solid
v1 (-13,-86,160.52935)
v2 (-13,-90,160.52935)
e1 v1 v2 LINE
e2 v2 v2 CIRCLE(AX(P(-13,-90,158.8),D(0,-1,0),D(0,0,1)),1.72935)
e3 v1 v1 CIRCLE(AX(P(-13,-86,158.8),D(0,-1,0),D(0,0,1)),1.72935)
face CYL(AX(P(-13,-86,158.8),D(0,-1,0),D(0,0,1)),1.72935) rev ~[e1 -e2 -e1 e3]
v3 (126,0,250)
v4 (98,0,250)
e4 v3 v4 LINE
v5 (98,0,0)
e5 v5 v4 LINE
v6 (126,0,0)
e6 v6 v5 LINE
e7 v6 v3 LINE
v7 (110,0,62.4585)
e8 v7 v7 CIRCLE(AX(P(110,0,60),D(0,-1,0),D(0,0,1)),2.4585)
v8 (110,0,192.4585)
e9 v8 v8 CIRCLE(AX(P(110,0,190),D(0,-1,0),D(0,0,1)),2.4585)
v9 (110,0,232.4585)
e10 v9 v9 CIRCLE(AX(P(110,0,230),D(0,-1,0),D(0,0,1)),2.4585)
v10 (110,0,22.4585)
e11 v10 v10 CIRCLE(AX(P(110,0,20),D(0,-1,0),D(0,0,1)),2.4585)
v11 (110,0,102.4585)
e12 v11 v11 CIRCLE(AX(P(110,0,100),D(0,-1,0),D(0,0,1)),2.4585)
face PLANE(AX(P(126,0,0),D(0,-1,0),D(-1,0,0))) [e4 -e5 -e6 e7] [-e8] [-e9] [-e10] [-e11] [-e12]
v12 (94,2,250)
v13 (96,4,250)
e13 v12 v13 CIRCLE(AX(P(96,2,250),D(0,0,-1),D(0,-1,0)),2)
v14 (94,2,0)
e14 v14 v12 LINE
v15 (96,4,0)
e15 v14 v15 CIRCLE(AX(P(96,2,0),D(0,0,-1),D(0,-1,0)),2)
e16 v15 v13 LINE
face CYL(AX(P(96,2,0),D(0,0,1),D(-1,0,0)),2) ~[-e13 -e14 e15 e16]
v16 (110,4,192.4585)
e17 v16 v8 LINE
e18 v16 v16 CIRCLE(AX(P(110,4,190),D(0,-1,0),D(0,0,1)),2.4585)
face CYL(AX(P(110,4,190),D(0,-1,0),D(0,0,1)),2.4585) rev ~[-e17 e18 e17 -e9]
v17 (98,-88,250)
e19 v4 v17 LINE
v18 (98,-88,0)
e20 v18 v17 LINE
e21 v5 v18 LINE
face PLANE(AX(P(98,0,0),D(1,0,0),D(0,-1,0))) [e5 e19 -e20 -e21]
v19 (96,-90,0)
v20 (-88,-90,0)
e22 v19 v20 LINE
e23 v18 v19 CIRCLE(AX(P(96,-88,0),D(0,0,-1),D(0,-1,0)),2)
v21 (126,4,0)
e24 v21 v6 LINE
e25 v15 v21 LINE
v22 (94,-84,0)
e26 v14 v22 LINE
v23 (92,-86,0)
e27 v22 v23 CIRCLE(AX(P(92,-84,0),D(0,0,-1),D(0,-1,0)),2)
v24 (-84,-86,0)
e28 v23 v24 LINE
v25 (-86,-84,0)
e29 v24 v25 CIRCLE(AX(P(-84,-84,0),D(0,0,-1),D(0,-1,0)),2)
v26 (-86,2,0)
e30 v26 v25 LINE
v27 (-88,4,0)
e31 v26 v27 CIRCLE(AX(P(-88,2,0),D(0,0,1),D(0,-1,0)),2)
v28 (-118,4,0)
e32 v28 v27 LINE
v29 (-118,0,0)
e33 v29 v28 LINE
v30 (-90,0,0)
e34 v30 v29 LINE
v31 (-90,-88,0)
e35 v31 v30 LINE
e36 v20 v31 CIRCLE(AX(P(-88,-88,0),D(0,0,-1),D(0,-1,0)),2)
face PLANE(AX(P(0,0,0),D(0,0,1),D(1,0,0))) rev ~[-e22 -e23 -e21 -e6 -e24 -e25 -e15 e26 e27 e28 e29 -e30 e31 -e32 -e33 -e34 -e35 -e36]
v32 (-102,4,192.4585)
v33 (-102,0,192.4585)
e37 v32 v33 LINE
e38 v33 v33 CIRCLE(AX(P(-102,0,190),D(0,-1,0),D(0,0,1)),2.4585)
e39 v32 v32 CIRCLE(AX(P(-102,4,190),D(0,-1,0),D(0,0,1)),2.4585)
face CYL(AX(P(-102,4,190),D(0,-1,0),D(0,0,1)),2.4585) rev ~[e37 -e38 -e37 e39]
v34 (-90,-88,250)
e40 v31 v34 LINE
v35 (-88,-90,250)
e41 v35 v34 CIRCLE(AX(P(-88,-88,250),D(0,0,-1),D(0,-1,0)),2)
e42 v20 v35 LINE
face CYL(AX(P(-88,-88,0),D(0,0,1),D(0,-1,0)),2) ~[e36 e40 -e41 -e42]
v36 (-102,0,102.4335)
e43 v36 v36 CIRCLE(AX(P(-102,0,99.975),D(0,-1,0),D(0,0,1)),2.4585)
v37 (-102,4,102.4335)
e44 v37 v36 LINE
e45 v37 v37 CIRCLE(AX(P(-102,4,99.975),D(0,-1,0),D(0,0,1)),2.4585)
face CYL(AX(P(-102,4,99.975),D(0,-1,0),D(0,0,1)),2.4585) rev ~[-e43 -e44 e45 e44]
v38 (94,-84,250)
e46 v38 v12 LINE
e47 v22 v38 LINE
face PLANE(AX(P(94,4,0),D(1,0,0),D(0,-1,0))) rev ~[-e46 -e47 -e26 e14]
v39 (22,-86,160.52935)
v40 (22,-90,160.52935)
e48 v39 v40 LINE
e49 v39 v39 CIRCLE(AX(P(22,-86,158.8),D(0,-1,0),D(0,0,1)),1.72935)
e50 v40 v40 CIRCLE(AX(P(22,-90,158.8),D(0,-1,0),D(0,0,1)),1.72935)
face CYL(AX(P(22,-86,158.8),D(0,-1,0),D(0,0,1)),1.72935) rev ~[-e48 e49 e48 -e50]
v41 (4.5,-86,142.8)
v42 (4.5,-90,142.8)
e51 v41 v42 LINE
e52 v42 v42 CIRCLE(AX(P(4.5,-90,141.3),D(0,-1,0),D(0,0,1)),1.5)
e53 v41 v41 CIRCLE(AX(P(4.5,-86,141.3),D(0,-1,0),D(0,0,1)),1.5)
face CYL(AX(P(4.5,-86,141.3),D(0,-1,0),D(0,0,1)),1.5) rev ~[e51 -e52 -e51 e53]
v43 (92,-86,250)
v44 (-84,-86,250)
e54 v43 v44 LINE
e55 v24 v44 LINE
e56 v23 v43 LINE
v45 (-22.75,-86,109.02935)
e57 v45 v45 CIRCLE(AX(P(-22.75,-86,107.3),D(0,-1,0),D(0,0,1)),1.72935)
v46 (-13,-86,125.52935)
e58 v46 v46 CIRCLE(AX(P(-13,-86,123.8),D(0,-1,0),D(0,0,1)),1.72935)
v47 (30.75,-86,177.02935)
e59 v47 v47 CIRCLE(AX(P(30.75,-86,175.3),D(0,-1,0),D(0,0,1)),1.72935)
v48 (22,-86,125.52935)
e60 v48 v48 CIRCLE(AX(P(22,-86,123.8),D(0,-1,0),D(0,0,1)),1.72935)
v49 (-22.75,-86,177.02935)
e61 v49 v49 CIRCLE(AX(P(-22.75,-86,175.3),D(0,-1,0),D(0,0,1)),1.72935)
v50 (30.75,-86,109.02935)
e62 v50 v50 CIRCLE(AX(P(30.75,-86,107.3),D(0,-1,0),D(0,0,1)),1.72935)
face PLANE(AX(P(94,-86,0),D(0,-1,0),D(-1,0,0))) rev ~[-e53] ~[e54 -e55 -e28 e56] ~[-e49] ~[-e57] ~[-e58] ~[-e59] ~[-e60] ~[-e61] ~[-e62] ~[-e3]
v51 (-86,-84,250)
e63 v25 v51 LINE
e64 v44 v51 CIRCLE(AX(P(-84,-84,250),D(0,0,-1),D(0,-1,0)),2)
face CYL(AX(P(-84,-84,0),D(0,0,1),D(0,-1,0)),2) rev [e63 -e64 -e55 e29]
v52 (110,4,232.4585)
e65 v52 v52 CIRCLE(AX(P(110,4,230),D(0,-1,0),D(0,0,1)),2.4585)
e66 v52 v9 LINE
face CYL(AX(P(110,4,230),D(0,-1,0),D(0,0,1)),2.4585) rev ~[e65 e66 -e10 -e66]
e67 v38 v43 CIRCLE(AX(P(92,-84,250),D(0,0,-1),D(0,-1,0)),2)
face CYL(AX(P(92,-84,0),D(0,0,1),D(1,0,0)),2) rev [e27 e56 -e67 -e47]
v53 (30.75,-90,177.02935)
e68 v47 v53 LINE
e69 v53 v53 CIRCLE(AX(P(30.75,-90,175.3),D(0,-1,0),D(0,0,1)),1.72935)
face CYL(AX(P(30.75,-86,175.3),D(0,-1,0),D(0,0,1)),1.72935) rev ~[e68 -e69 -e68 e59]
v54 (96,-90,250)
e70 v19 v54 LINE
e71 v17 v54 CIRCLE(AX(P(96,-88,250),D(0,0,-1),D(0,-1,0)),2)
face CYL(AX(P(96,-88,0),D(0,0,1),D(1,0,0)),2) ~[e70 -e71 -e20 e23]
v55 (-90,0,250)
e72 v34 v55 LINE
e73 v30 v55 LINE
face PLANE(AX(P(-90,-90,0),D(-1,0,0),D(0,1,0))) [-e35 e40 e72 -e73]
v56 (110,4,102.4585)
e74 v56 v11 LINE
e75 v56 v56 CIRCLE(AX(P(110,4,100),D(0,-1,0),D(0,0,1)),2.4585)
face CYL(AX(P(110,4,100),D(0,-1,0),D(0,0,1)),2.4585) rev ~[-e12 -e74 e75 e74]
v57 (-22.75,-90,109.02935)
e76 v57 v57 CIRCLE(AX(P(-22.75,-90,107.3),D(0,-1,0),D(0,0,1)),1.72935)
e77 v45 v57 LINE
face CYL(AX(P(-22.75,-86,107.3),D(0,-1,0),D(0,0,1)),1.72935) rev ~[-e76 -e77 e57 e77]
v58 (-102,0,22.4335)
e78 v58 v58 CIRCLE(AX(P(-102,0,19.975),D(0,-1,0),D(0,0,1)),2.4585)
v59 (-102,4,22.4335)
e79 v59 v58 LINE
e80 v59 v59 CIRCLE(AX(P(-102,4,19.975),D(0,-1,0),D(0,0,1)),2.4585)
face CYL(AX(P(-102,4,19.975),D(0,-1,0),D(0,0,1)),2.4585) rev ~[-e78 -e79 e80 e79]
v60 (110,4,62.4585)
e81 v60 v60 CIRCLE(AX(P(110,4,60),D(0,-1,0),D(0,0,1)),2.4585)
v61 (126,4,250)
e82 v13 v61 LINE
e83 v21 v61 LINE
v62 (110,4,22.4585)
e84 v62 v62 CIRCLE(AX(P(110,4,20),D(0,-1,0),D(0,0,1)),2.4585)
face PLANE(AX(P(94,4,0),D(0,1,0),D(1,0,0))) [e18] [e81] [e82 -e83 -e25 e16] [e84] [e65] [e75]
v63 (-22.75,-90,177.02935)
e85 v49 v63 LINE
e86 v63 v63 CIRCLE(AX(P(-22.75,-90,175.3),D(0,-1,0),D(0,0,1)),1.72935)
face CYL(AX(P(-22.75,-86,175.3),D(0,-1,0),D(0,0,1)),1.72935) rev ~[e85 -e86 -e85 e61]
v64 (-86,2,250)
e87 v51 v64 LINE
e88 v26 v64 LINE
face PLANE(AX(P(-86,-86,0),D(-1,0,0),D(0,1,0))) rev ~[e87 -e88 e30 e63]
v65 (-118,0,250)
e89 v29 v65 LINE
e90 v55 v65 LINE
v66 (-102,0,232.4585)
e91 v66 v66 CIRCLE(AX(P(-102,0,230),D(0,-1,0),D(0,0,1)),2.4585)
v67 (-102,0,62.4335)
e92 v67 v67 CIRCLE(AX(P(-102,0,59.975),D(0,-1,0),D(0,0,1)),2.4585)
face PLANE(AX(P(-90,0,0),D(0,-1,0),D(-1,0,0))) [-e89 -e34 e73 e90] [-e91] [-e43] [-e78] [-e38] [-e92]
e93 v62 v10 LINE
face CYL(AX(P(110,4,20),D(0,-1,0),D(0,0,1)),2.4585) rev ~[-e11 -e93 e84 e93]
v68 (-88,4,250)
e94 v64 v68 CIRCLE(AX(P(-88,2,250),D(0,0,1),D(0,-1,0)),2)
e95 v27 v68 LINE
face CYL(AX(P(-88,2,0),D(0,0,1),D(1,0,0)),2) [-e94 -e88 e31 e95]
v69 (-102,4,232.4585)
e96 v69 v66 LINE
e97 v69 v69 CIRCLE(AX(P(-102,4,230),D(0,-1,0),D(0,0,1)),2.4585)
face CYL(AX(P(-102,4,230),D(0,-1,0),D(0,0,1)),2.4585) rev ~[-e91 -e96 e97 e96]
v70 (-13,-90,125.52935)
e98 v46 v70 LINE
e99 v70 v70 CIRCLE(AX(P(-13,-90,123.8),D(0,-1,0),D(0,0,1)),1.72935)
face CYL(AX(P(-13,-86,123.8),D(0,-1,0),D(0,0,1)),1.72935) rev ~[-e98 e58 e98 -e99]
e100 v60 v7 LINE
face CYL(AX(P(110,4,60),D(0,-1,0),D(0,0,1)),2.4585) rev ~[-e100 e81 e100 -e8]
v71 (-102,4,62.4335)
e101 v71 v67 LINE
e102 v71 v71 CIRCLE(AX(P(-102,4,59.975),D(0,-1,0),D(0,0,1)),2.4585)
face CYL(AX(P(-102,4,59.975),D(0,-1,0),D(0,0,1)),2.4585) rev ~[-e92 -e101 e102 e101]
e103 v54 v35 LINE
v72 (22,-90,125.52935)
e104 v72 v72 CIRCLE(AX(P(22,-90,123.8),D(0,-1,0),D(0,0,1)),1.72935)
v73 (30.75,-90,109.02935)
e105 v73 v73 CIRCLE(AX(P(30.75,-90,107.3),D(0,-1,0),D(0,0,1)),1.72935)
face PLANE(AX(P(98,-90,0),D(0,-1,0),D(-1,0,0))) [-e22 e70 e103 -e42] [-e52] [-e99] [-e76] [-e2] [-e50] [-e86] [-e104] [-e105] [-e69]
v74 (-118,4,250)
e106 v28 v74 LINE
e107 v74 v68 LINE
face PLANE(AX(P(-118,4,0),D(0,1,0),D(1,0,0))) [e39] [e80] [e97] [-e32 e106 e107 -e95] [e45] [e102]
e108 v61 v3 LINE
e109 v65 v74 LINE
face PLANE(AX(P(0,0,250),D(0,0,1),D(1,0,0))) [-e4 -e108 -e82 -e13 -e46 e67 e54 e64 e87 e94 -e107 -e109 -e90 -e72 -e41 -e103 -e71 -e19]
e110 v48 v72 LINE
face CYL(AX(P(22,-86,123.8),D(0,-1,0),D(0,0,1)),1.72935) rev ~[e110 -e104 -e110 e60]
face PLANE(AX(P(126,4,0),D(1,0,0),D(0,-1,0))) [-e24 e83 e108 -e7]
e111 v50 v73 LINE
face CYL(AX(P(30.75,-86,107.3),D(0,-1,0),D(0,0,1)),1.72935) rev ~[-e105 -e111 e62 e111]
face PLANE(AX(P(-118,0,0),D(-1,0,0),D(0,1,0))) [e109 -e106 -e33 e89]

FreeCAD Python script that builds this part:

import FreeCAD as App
import Part
import Sketcher
from FreeCAD import Vector


def edges_at(feature, points):
    """Names of the edges that pass closest to the given points."""
    edges = feature.Shape.Edges
    near = lambda p: min(range(len(edges)), key=lambda i: edges[i].distToShape(Part.Vertex(*p))[0])
    return sorted({f"Edge{near(p) + 1}" for p in points})


def add_polygon(sketch, points):
    """Adds a closed chain of lines whose ends are joined by coincident constraints."""
    first, n = sketch.GeometryCount, len(points)
    for a, b in zip(points, points[1:] + points[:1]):
        sketch.addGeometry(Part.LineSegment(App.Vector(*a, 0), App.Vector(*b, 0)), False)
    for i in range(n):
        sketch.addConstraint(Sketcher.Constraint("Coincident", first + i, 2, first + (i + 1) % n, 1))

doc = App.newDocument("Part")
body = doc.addObject("PartDesign::Body", "Body")

# Sketch on XY plane
sketch1 = body.newObject("Sketcher::SketchObject", "Sketch")
sketch1.AttachmentSupport = (doc.getObject("XY_Plane"), [""])
sketch1.MapMode = "FlatFace"
add_polygon(sketch1, [(94, 4), (94, -86), (-86, -86), (-86, 4), (-118, 4), (-118, 0), (-90, 0), (-90, -90), (98, -90), (98, 0), (126, 0), (126, 4)])  # lines 0-11
sketch1.addConstraint([
    Sketcher.Constraint("Vertical", 0),
    Sketcher.Constraint("Horizontal", 1),
    Sketcher.Constraint("Vertical", 2),
    Sketcher.Constraint("Horizontal", 3),
    Sketcher.Constraint("Vertical", 4),
    Sketcher.Constraint("Horizontal", 5),
    Sketcher.Constraint("Vertical", 6),
    Sketcher.Constraint("Horizontal", 7),
    Sketcher.Constraint("Vertical", 8),
    Sketcher.Constraint("Horizontal", 9),
    Sketcher.Constraint("Vertical", 10),
    Sketcher.Constraint("Horizontal", 11),
    Sketcher.Constraint("PointOnObject", 4, 2, -1),
    Sketcher.Constraint("PointOnObject", 8, 2, -1),
    Sketcher.Constraint("Horizontal", 3, 2, 10, 2),
    Sketcher.Constraint("Equal", 5, 9),
    Sketcher.Constraint("Equal", 3, 11),
    Sketcher.Constraint("Equal", 2, 6),
    Sketcher.Constraint("DistanceX", 1, 2, 1, 1, 180.0),
    Sketcher.Constraint("DistanceX", 3, 2, 3, 1, 32.0),
    Sketcher.Constraint("DistanceX", 7, 1, 7, 2, 188.0),
    Sketcher.Constraint("DistanceY", 0, 2, 0, 1, 90.0),
    Sketcher.Constraint("DistanceY", 4, 2, 4, 1, 4.0),
    Sketcher.Constraint("DistanceX", 5, 2, -1, 1, 90.0),
])
pad1 = body.newObject("PartDesign::Pad", "Pad")
pad1.Profile = sketch1
pad1.Length = 250
doc.recompute()

fillet = body.newObject("PartDesign::Fillet", "Fillet")
fillet.Base = (pad1, edges_at(pad1, [
    (-86, -86, 125),
    (-86, 4, 125),
    (94, 4, 125),
    (98, -90, 125),
]))
fillet.Radius = 2
doc.recompute()

fillet2 = body.newObject("PartDesign::Fillet", "Fillet001")
fillet2.Base = (fillet, edges_at(fillet, [(-90, -90, 125), (94, -86, 125)]))
fillet2.Radius = 2

# Sketch on XZ plane
sketch2 = body.newObject("Sketcher::SketchObject", "Sketch001")
sketch2.AttachmentSupport = (doc.getObject("XZ_Plane"), [""])
sketch2.MapMode = "FlatFace"
sketch2.AttachmentOffset = App.Placement(Vector(0, 0, 86), App.Rotation())
sketch2.addGeometry([
    Part.Circle(Vector(30.75, 175.3, 0), Vector(0, 0, 1), 1.72935),
    Part.Circle(Vector(-22.75, 175.3, 0), Vector(0, 0, 1), 1.72935),
], False)
sketch2.addConstraint([
    Sketcher.Constraint("Equal", 0, 1),
    Sketcher.Constraint("Horizontal", 0, 3, 1, 3),
    Sketcher.Constraint("Diameter", 0, 3.4587),
    Sketcher.Constraint("DistanceY", -1, 1, 0, 3, 175.3),
    Sketcher.Constraint("DistanceX", 1, 3, 0, 3, 53.5),
    Sketcher.Constraint("DistanceX", -1, 1, 0, 3, 30.75),
])
doc.recompute()
hole = body.newObject("PartDesign::Hole", "Hole")
hole.Profile = sketch2
hole.ThreadType = "None"
hole.Diameter = 3.4587
hole.DepthType = "ThroughAll"
hole.Reversed = True

# Sketch on XZ plane
sketch3 = body.newObject("Sketcher::SketchObject", "Sketch002")
sketch3.AttachmentSupport = (doc.getObject("XZ_Plane"), [""])
sketch3.MapMode = "FlatFace"
sketch3.AttachmentOffset = App.Placement(Vector(0, 0, 86), App.Rotation())
sketch3.addGeometry([
    Part.Circle(Vector(30.75, 107.3, 0), Vector(0, 0, 1), 1.72935),
    Part.Circle(Vector(-22.75, 107.3, 0), Vector(0, 0, 1), 1.72935),
], False)
sketch3.addConstraint([
    Sketcher.Constraint("Equal", 0, 1),
    Sketcher.Constraint("Horizontal", 0, 3, 1, 3),
    Sketcher.Constraint("Diameter", 0, 3.4587),
    Sketcher.Constraint("DistanceY", -1, 1, 0, 3, 107.3),
    Sketcher.Constraint("DistanceX", 1, 3, 0, 3, 53.5),
    Sketcher.Constraint("DistanceX", -1, 1, 0, 3, 30.75),
])
doc.recompute()
hole2 = body.newObject("PartDesign::Hole", "Hole001")
hole2.Profile = sketch3
hole2.ThreadType = "None"
hole2.Diameter = 3.4587
hole2.DepthType = "ThroughAll"
hole2.Reversed = True

# Sketch on XZ plane
sketch4 = body.newObject("Sketcher::SketchObject", "Sketch003")
sketch4.AttachmentSupport = (doc.getObject("XZ_Plane"), [""])
sketch4.MapMode = "FlatFace"
sketch4.AttachmentOffset = App.Placement(Vector(0, 0, 86), App.Rotation())
sketch4.addGeometry([
    Part.Circle(Vector(-13, 158.8, 0), Vector(0, 0, 1), 1.72935),
    Part.Circle(Vector(-13, 123.8, 0), Vector(0, 0, 1), 1.72935),
    Part.Circle(Vector(22, 123.8, 0), Vector(0, 0, 1), 1.72935),
    Part.Circle(Vector(22, 158.8, 0), Vector(0, 0, 1), 1.72935),
], False)
sketch4.addConstraint([
    Sketcher.Constraint("Equal", 0, 1),
    Sketcher.Constraint("Equal", 1, 2),
    Sketcher.Constraint("Equal", 2, 3),
    Sketcher.Constraint("Horizontal", 1, 3, 2, 3),
    Sketcher.Constraint("Horizontal", 0, 3, 3, 3),
    Sketcher.Constraint("Vertical", 0, 3, 1, 3),
    Sketcher.Constraint("Vertical", 2, 3, 3, 3),
    Sketcher.Constraint("DistanceX", 0, 3, -1, 1, 13.0),
    Sketcher.Constraint("DistanceX", -1, 1, 2, 3, 22.0),
    Sketcher.Constraint("DistanceY", 1, 3, 0, 3, 35.0),
    Sketcher.Constraint("Diameter", 0, 3.4587),
    Sketcher.Constraint("DistanceY", -1, 1, 0, 3, 158.8),
])
doc.recompute()
hole3 = body.newObject("PartDesign::Hole", "Hole002")
hole3.Profile = sketch4
hole3.ThreadType = "None"
hole3.Diameter = 3.4587
hole3.DepthType = "ThroughAll"
hole3.Reversed = True

# Sketch on XZ plane
sketch5 = body.newObject("Sketcher::SketchObject", "Sketch004")
sketch5.AttachmentSupport = (doc.getObject("XZ_Plane"), [""])
sketch5.MapMode = "FlatFace"
sketch5.AttachmentOffset = App.Placement(Vector(0, 0, 86), App.Rotation())
sketch5.addGeometry(Part.Circle(Vector(4.5, 141.3, 0), Vector(0, 0, 1), 1.5), False)
sketch5.addConstraint([
    Sketcher.Constraint("Diameter", 0, 3.0),
    Sketcher.Constraint("DistanceX", -1, 1, 0, 3, 4.5),
    Sketcher.Constraint("DistanceY", -1, 1, 0, 3, 141.3),
])
doc.recompute()
hole4 = body.newObject("PartDesign::Hole", "Hole003")
hole4.Profile = sketch5
hole4.ThreadType = "None"
hole4.Diameter = 3
hole4.DepthType = "ThroughAll"
hole4.Reversed = True

# Sketch on XZ plane
sketch6 = body.newObject("Sketcher::SketchObject", "Sketch005")
sketch6.AttachmentSupport = (doc.getObject("XZ_Plane"), [""])
sketch6.MapMode = "FlatFace"
sketch6.AttachmentOffset = App.Placement(Vector(0, 0, -4), App.Rotation())
sketch6.addGeometry([
    Part.Circle(Vector(-102, 230, 0), Vector(0, 0, 1), 2.4585),  # 0
    Part.Circle(Vector(-102, 190, 0), Vector(0, 0, 1), 2.4585),  # 1
    Part.Circle(Vector(-102, 19.975, 0), Vector(0, 0, 1), 2.4585),  # 2
    Part.Circle(Vector(-102, 59.975, 0), Vector(0, 0, 1), 2.4585),  # 3
    Part.Circle(Vector(-102, 99.975, 0), Vector(0, 0, 1), 2.4585),  # 4
    Part.Circle(Vector(110, 20, 0), Vector(0, 0, 1), 2.4585),  # 5
    Part.Circle(Vector(110, 60, 0), Vector(0, 0, 1), 2.4585),  # 6
    Part.Circle(Vector(110, 100, 0), Vector(0, 0, 1), 2.4585),  # 7
    Part.Circle(Vector(110, 190, 0), Vector(0, 0, 1), 2.4585),  # 8
    Part.Circle(Vector(110, 230, 0), Vector(0, 0, 1), 2.4585),  # 9
], False)
sketch6.addConstraint([
    Sketcher.Constraint("Equal", 0, 1),
    Sketcher.Constraint("Equal", 1, 2),
    Sketcher.Constraint("Equal", 2, 3),
    Sketcher.Constraint("Equal", 3, 4),
    Sketcher.Constraint("Equal", 4, 5),
    Sketcher.Constraint("Equal", 5, 6),
    Sketcher.Constraint("Equal", 6, 7),
    Sketcher.Constraint("Equal", 7, 8),
    Sketcher.Constraint("Equal", 8, 9),
    Sketcher.Constraint("Horizontal", 1, 3, 8, 3),
    Sketcher.Constraint("Horizontal", 0, 3, 9, 3),
    Sketcher.Constraint("Vertical", 0, 3, 1, 3),
    Sketcher.Constraint("Vertical", 1, 3, 2, 3),
    Sketcher.Constraint("Vertical", 2, 3, 3, 3),
    Sketcher.Constraint("Vertical", 3, 3, 4, 3),
    Sketcher.Constraint("Vertical", 5, 3, 6, 3),
    Sketcher.Constraint("Vertical", 6, 3, 7, 3),
    Sketcher.Constraint("Vertical", 7, 3, 8, 3),
    Sketcher.Constraint("Vertical", 8, 3, 9, 3),
    Sketcher.Constraint("Diameter", 0, 4.917),
    Sketcher.Constraint("DistanceX", 0, 3, -1, 1, 102.0),
    Sketcher.Constraint("DistanceY", -1, 1, 0, 3, 230.0),
    Sketcher.Constraint("DistanceY", -1, 1, 1, 3, 190.0),
    Sketcher.Constraint("DistanceX", -1, 1, 5, 3, 110.0),
    Sketcher.Constraint("DistanceY", -1, 1, 5, 3, 20.0),
    Sketcher.Constraint("DistanceY", -1, 1, 6, 3, 60.0),
    Sketcher.Constraint("DistanceY", -1, 1, 7, 3, 100.0),
    Sketcher.Constraint("DistanceY", 2, 3, 3, 3, 40.0),
    Sketcher.Constraint("DistanceY", 3, 3, 4, 3, 40.0),
    Sketcher.Constraint("DistanceY", -1, 1, 2, 3, 19.975),
])
doc.recompute()
hole5 = body.newObject("PartDesign::Hole", "Hole004")
hole5.Profile = sketch6
hole5.ThreadType = "None"
hole5.Diameter = 4.917
hole5.DepthType = "ThroughAll"
hole5.Reversed = True

doc.recompute()
